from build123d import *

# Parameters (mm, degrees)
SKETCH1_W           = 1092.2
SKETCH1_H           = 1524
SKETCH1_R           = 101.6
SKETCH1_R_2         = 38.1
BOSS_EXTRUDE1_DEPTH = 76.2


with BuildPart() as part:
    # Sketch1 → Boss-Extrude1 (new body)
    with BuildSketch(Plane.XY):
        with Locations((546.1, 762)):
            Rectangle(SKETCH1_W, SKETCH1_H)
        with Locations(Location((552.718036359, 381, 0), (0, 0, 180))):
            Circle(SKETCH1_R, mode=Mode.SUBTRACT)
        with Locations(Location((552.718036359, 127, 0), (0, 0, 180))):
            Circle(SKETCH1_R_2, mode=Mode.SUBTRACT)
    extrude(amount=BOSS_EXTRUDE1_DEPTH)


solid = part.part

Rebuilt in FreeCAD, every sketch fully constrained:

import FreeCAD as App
import Part
import Sketcher
from FreeCAD import Vector
Q = App.Units.Quantity


def add_polygon(sketch, points):
    """Adds a closed chain of lines whose ends are joined by coincident constraints."""
    first, n = sketch.GeometryCount, len(points)
    for a, b in zip(points, points[1:] + points[:1]):
        sketch.addGeometry(Part.LineSegment(App.Vector(*a, 0), App.Vector(*b, 0)), False)
    for i in range(n):
        sketch.addConstraint(Sketcher.Constraint("Coincident", first + i, 2, first + (i + 1) % n, 1))

doc = App.newDocument("Part")
body = doc.addObject("PartDesign::Body", "Body")

# Sketch on XY plane
sketch1 = body.newObject("Sketcher::SketchObject", "Sketch")
sketch1.AttachmentSupport = (doc.getObject("XY_Plane"), [""])
sketch1.MapMode = "FlatFace"
add_polygon(sketch1, [(0, 1524), (0, 0), (1092, 0), (1092, 1524)])  # lines 0-3
sketch1.addGeometry(Part.Circle(Vector(553, 127, 0), Vector(0, 0, 1), 38), False)  # 4
sketch1.addGeometry(Part.Circle(Vector(553, 381, 0), Vector(0, 0, 1), 102), False)  # 5
sketch1.addConstraint([
    Sketcher.Constraint("Vertical", 0),
    Sketcher.Constraint("Horizontal", 1),
    Sketcher.Constraint("Vertical", 2),
    Sketcher.Constraint("Horizontal", 3),
    Sketcher.Constraint("Coincident", 0, 2, -1, 1),
    Sketcher.Constraint("Vertical", 4, 3, 5, 3),
    Sketcher.Constraint("Diameter", 4, Q("3 in")),
    Sketcher.Constraint("Diameter", 5, Q("8 in")),
    Sketcher.Constraint("DistanceX", 1, 1, 1, 2, Q("43 in")),
    Sketcher.Constraint("DistanceY", 0, 2, 0, 1, Q("60 in")),
    Sketcher.Constraint("DistanceY", -1, 1, 4, 3, Q("5 in")),
    Sketcher.Constraint("DistanceY", -1, 1, 5, 3, Q("15 in")),
    Sketcher.Constraint("DistanceX", -1, 1, 4, 3, Q("552.718036 mm")),
])
pad1 = body.newObject("PartDesign::Pad", "Pad")
pad1.Profile = sketch1
pad1.Length = Q("3 in")

doc.recompute()
